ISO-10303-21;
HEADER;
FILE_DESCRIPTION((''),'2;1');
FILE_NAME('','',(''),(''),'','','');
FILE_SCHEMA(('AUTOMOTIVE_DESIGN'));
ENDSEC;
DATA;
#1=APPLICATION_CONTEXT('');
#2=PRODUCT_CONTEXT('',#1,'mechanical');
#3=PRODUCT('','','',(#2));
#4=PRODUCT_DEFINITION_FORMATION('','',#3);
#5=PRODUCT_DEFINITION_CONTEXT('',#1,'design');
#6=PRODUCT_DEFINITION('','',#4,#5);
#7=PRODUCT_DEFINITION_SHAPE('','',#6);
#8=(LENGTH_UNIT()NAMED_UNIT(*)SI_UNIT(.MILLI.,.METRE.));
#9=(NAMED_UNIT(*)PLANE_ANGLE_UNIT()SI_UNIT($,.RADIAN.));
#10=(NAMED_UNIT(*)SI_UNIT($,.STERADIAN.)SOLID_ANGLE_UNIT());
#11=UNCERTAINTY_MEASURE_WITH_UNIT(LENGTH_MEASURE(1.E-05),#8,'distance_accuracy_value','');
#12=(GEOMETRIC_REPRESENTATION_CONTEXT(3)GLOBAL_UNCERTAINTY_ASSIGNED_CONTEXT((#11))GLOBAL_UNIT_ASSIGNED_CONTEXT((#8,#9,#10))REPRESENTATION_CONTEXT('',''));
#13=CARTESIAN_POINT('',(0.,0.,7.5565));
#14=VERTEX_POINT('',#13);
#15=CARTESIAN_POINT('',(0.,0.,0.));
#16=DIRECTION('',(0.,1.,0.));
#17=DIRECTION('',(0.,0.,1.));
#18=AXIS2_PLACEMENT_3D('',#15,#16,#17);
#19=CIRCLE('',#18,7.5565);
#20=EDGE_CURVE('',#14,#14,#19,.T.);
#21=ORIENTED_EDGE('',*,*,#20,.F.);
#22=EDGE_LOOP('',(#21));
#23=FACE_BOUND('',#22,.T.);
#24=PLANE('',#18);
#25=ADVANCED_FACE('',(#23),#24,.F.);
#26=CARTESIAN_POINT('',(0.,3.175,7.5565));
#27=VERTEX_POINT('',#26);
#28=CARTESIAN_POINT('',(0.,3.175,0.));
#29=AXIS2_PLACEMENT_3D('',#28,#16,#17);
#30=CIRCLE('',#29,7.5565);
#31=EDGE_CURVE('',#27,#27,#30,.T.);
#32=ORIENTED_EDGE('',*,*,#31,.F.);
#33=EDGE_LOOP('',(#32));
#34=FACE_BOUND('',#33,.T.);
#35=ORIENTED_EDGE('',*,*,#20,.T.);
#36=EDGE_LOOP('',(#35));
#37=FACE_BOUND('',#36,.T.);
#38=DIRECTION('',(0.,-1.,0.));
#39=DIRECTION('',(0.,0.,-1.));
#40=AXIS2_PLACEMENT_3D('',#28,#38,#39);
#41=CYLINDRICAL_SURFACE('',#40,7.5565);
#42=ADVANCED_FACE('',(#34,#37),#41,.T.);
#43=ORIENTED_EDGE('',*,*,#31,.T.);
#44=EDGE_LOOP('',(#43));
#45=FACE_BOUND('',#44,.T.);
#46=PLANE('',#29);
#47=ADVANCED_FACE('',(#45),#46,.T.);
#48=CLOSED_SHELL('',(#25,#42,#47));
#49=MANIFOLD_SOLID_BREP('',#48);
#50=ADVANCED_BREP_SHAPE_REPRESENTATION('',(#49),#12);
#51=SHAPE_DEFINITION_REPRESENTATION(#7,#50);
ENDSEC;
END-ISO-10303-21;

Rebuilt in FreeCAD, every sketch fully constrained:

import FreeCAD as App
import Part
import Sketcher

V = App.Vector
Q = App.Units.Quantity

doc = App.newDocument("Part")
body = doc.addObject("PartDesign::Body", "Body")

sketch1 = doc.addObject("Sketcher::SketchObject", "Sketch")
body.addObject(sketch1)
sketch1.AttachmentSupport = (doc.XZ_Plane, [""])
sketch1.MapMode = "FlatFace"
sketch1.addGeometry(Part.Circle(V(0, 0, 0), V(0, 0, 1), 8), False)
sketch1.addConstraint(Sketcher.Constraint("Coincident", 0, 3, -1, 1))
sketch1.addConstraint(Sketcher.Constraint("Diameter", 0, Q("0.595 in")))
pad1 = doc.addObject("PartDesign::Pad", "Pad")
body.addObject(pad1)
pad1.Profile = sketch1
pad1.Length = Q("0.125 in")
pad1.Reversed = True

doc.recompute()
